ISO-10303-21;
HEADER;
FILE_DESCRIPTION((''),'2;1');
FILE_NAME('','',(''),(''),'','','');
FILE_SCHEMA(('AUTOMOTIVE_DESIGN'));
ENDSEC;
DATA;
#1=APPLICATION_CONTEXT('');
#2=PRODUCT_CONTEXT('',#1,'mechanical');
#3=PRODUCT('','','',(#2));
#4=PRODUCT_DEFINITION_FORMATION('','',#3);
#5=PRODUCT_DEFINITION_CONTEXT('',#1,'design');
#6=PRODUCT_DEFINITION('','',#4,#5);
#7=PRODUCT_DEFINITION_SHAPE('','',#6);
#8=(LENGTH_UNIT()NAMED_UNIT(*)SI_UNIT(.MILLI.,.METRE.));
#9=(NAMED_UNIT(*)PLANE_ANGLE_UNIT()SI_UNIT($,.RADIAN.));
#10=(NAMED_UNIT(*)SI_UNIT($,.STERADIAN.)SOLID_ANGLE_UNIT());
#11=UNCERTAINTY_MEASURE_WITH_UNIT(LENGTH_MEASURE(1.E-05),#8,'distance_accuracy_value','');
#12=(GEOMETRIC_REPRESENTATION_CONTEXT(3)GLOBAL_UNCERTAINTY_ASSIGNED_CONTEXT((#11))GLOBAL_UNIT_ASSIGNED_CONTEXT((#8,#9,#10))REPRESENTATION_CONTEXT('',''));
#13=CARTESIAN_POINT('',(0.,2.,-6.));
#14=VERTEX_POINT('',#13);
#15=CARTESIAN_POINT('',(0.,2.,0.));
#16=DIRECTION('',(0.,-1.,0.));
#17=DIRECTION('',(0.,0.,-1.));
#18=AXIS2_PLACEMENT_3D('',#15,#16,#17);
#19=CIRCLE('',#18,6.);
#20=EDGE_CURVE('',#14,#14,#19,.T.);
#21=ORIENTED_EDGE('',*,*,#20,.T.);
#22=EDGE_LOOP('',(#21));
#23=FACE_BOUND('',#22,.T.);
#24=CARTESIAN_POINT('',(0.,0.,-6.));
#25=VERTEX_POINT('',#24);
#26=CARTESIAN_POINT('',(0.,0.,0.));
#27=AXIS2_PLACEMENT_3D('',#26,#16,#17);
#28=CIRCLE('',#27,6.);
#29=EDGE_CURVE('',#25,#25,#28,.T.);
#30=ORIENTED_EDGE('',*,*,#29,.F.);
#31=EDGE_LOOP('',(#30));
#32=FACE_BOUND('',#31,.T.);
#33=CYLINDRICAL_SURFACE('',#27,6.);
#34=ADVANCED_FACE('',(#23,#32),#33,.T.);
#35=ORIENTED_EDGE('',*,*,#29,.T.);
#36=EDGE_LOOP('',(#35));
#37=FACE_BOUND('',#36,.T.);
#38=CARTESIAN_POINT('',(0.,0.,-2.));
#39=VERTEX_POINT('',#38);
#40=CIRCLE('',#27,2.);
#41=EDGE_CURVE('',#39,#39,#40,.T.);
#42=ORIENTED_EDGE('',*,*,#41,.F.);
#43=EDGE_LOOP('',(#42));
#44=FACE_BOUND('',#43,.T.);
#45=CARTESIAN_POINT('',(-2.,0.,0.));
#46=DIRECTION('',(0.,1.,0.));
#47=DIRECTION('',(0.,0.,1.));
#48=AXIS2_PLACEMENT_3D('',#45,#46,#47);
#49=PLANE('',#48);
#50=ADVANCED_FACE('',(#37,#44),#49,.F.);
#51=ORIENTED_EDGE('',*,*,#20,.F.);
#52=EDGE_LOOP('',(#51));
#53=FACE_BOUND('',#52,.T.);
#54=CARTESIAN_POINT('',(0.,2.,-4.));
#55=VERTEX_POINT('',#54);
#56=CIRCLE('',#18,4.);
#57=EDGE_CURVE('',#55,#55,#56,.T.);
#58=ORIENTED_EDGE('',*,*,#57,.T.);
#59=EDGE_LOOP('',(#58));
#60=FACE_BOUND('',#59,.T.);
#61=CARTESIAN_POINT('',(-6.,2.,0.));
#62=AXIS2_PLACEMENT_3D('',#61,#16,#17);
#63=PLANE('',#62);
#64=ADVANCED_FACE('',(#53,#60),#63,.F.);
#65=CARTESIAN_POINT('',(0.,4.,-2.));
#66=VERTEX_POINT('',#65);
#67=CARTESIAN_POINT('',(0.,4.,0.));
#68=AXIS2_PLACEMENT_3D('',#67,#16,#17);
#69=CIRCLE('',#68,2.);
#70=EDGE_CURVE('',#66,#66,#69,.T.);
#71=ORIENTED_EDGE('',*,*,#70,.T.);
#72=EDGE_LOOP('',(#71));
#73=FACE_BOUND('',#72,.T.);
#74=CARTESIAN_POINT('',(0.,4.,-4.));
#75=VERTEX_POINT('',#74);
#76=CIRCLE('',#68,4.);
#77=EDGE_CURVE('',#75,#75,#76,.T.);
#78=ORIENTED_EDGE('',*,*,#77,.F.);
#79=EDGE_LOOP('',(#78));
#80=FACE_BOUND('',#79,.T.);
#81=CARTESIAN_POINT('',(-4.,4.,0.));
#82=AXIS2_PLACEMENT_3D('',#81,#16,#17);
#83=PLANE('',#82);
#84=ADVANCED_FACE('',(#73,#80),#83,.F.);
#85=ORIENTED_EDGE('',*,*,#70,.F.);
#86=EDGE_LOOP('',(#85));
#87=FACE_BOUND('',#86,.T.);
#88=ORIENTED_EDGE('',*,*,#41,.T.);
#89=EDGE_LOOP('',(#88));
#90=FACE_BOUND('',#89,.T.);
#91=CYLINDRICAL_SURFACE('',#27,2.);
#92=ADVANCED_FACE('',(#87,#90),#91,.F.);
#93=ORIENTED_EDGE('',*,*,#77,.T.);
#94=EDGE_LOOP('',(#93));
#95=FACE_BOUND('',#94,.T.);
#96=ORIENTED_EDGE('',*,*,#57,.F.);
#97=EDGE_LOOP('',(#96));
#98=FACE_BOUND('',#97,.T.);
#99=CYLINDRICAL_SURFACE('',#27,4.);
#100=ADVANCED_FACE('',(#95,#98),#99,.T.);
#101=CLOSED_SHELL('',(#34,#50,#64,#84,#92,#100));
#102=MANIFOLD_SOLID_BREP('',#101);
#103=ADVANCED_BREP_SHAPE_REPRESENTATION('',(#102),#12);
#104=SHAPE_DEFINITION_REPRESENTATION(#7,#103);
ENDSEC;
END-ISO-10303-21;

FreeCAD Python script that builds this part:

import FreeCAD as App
import Part
import Sketcher

V = App.Vector
Q = App.Units.Quantity

doc = App.newDocument("Part")
body = doc.addObject("PartDesign::Body", "Body")

# Sketch on XY plane
sketch1 = body.newObject("Sketcher::SketchObject", "Sketch")
sketch1.AttachmentSupport = (doc.getObject("XY_Plane"), [""])
sketch1.MapMode = "FlatFace"
sketch1.addGeometry(Part.LineSegment(V(-2, 0, 0), V(-2, 4, 0)), False)
sketch1.addGeometry(Part.LineSegment(V(-2, 4, 0), V(-4, 4, 0)), False)
sketch1.addGeometry(Part.LineSegment(V(-4, 4, 0), V(-4, 2, 0)), False)
sketch1.addGeometry(Part.LineSegment(V(-4, 2, 0), V(-6, 2, 0)), False)
sketch1.addGeometry(Part.LineSegment(V(-6, 2, 0), V(-6, 0, 0)), False)
sketch1.addGeometry(Part.LineSegment(V(-6, 0, 0), V(-2, 0, 0)), False)
sketch1.addConstraint(Sketcher.Constraint("Coincident", 0, 2, 1, 1))
sketch1.addConstraint(Sketcher.Constraint("Coincident", 1, 2, 2, 1))
sketch1.addConstraint(Sketcher.Constraint("Coincident", 2, 2, 3, 1))
sketch1.addConstraint(Sketcher.Constraint("Coincident", 3, 2, 4, 1))
sketch1.addConstraint(Sketcher.Constraint("Coincident", 4, 2, 5, 1))
sketch1.addConstraint(Sketcher.Constraint("Coincident", 5, 2, 0, 1))
sketch1.addConstraint(Sketcher.Constraint("Vertical", 0))
sketch1.addConstraint(Sketcher.Constraint("Horizontal", 1))
sketch1.addConstraint(Sketcher.Constraint("Vertical", 2))
sketch1.addConstraint(Sketcher.Constraint("Horizontal", 3))
sketch1.addConstraint(Sketcher.Constraint("Vertical", 4))
sketch1.addConstraint(Sketcher.Constraint("Horizontal", 5))
sketch1.addConstraint(Sketcher.Constraint("PointOnObject", 4, 2, -1))
sketch1.addConstraint(Sketcher.Constraint("Equal", 1, 3))
sketch1.addConstraint(Sketcher.Constraint("Equal", 5, 0))
sketch1.addConstraint(Sketcher.Constraint("Equal", 3, 2))
sketch1.addConstraint(Sketcher.Constraint("DistanceX", 1, 2, 1, 1, Q("2 mm")))
sketch1.addConstraint(Sketcher.Constraint("DistanceX", 0, 2, -1, 1, Q("2 mm")))
revolution = body.newObject("PartDesign::Revolution", "Revolution")
revolution.Profile = sketch1
revolution.ReferenceAxis = (sketch1, ["V_Axis"])
revolution.Angle = 360

doc.recompute()
